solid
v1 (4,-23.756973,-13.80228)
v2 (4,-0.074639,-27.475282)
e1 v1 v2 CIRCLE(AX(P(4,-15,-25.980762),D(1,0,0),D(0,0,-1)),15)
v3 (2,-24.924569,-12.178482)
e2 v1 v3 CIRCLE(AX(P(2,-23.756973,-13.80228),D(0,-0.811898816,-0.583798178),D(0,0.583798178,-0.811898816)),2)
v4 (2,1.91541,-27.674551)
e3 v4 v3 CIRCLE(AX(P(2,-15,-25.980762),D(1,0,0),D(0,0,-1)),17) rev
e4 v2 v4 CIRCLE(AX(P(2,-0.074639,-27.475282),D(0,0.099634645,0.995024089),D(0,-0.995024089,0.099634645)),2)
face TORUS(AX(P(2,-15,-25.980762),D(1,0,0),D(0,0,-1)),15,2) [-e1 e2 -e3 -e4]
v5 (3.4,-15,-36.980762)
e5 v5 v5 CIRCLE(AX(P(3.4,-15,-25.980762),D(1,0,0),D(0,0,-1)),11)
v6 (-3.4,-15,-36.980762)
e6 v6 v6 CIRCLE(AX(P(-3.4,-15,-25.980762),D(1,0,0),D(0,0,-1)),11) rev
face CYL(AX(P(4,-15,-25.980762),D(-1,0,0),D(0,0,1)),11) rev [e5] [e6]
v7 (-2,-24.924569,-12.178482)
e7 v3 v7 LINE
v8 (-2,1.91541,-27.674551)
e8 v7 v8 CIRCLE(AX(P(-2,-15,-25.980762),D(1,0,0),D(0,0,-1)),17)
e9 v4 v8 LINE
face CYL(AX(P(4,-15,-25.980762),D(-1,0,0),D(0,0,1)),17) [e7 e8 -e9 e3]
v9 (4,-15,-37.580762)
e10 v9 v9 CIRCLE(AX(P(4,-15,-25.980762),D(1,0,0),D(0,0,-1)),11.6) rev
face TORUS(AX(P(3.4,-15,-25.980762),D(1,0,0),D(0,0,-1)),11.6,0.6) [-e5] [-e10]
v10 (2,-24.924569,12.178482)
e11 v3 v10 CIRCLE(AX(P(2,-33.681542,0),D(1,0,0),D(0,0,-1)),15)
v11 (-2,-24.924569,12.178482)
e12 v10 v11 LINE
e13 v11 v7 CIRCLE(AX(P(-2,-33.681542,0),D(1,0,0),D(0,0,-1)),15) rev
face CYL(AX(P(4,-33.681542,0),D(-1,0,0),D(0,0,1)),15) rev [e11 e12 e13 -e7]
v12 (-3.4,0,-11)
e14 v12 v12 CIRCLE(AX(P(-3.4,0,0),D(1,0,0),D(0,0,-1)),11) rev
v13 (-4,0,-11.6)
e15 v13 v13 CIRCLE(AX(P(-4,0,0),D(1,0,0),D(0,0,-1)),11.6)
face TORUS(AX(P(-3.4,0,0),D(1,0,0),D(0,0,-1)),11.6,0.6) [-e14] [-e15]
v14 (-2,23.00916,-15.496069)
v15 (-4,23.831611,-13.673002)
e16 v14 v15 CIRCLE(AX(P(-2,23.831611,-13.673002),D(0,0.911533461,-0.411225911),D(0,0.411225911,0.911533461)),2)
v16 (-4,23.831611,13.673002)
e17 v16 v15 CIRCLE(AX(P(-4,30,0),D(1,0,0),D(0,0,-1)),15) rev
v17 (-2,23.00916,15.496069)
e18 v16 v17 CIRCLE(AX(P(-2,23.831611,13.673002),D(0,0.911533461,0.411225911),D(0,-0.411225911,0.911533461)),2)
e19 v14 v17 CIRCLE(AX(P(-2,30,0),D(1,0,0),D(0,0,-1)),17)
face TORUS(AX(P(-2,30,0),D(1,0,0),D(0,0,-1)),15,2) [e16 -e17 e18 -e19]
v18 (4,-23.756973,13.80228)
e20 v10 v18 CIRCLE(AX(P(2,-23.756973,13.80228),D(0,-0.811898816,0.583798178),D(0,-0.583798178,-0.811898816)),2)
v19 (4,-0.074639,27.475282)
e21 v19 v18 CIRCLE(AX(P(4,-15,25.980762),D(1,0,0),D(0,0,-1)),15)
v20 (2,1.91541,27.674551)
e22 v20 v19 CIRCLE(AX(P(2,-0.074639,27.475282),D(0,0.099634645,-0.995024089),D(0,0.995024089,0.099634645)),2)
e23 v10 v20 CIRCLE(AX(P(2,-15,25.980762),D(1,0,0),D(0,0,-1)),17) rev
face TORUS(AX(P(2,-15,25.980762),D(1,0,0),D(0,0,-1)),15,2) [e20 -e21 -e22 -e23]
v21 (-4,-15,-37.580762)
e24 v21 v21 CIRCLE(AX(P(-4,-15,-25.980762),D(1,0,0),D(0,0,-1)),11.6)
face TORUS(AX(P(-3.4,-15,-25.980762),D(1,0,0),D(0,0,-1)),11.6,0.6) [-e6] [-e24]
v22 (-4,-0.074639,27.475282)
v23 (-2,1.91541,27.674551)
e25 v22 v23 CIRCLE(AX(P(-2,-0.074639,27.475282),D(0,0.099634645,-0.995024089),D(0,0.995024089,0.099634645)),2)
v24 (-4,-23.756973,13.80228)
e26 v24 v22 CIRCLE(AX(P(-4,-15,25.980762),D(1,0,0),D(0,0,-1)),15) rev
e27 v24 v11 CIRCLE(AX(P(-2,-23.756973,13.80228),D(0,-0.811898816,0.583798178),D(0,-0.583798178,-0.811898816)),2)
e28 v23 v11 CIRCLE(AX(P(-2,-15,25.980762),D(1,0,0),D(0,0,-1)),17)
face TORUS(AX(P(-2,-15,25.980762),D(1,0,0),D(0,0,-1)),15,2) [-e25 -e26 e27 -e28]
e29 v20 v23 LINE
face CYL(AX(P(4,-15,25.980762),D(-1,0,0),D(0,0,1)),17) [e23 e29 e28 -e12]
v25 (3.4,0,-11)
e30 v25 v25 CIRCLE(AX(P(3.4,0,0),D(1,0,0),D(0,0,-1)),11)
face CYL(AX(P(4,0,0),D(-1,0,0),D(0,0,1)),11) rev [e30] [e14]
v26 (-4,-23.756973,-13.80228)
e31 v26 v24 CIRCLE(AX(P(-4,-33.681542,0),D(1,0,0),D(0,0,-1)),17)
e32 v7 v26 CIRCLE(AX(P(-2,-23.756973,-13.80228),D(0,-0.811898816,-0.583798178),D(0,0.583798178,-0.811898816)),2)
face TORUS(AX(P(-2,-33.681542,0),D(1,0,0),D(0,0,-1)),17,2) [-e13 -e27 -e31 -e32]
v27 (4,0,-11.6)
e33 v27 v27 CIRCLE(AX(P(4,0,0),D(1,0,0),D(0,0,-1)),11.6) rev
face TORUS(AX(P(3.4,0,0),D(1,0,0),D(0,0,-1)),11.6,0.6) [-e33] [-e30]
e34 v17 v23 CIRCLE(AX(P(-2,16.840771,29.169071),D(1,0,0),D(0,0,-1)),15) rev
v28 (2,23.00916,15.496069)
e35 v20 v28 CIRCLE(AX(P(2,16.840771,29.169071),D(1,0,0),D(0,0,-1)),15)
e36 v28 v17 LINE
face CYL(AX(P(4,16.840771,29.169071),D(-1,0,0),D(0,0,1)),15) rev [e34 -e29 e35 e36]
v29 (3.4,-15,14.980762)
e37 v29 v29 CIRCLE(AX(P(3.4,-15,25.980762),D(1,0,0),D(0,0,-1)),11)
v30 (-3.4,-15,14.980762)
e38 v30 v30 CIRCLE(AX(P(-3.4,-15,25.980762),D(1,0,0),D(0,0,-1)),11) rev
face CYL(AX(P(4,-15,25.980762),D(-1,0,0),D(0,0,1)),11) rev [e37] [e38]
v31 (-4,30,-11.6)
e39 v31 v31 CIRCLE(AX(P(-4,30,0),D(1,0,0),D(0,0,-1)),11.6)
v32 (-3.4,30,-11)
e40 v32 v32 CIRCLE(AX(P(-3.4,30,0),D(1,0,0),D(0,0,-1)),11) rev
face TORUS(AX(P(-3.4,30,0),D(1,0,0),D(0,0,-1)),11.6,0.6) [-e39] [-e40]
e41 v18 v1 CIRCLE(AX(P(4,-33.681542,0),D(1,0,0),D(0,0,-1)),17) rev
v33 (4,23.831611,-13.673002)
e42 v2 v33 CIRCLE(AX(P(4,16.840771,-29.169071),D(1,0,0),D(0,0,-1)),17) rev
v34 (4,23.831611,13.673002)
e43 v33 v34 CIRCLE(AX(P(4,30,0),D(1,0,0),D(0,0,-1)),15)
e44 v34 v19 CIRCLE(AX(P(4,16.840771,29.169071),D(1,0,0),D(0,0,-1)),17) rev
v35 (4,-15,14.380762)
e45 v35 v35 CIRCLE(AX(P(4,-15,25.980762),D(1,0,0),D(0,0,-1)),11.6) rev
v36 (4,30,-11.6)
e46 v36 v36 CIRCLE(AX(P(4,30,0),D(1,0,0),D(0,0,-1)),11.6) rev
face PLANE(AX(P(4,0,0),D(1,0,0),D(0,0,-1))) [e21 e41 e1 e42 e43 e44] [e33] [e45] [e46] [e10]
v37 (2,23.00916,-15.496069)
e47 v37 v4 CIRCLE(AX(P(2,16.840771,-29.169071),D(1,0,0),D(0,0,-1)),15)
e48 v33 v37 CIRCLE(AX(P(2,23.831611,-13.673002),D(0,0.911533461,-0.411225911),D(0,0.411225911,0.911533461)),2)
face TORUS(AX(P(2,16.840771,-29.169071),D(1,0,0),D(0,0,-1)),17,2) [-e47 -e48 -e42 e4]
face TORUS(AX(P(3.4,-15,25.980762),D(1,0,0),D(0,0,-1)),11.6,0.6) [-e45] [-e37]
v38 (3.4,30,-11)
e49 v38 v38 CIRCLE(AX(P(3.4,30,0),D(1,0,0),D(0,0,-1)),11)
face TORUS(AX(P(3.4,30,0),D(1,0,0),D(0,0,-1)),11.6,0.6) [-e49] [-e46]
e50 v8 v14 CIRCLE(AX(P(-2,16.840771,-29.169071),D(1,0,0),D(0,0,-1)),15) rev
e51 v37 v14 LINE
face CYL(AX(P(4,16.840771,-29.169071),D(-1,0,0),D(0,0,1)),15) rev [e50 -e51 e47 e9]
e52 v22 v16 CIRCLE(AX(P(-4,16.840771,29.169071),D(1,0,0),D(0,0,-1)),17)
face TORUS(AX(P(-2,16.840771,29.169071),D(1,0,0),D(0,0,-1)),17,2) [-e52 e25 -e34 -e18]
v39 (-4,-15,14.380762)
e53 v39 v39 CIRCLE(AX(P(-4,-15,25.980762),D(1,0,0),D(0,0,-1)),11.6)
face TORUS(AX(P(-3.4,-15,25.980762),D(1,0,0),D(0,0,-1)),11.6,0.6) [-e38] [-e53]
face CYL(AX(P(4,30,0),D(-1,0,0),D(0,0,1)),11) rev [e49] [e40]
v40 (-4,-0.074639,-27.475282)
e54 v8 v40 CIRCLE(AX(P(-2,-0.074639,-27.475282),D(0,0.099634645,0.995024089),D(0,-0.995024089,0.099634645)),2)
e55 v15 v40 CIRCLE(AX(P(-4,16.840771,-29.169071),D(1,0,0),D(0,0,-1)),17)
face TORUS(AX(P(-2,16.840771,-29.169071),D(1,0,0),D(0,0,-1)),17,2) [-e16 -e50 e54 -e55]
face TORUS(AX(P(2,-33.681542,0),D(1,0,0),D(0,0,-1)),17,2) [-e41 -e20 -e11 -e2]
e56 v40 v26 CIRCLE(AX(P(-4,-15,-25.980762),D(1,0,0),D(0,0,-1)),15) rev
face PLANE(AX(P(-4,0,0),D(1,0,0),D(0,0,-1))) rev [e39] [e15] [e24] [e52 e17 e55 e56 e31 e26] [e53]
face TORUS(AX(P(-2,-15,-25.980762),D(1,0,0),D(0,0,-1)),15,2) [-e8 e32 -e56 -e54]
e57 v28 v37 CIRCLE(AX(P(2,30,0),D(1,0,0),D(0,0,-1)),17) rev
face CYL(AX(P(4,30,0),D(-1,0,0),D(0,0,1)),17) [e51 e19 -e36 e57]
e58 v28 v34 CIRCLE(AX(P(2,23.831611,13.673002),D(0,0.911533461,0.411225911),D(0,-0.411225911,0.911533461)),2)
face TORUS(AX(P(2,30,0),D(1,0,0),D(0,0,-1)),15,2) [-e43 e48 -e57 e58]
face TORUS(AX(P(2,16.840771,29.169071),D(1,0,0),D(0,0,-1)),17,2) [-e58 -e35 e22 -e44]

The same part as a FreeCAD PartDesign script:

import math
import FreeCAD as App
import Part
import Sketcher


def edges_at(feature, points):
    """Names of the edges that pass closest to the given points."""
    edges = feature.Shape.Edges
    near = lambda p: min(range(len(edges)), key=lambda i: edges[i].distToShape(Part.Vertex(*p))[0])
    return sorted({f"Edge{near(p) + 1}" for p in points})

doc = App.newDocument("Part")
params = doc.addObject("Spreadsheet::Sheet", "Params")
for row, (alias, value) in enumerate([
    ("sketch1_diameter", "22 mm"),
    ("sketch1_radius", "15 mm"),
    ("sketch1_radius2", "17 mm"),
    ("pad1_length", "8 mm"),
    ("fillet_radius", "2 mm"),
    ("fillet2_radius", "0.6 mm"),
], start=1):
    params.set(f"A{row}", alias)
    params.set(f"B{row}", "=" + value)
    params.setAlias(f"B{row}", alias)

body = doc.addObject("PartDesign::Body", "Body")

# Sketch on YZ plane
sketch1 = body.newObject("Sketcher::SketchObject", "Sketch")
sketch1.AttachmentSupport = (doc.getObject("YZ_Plane"), [""])
sketch1.MapMode = "FlatFace"
sketch1.addGeometry([
    Part.ArcOfCircle(Part.Circle(App.Vector(17, 29, 0), App.Vector(0, 0, 1), 15), math.radians(-174), math.radians(-66)),  # 0
    Part.ArcOfCircle(Part.Circle(App.Vector(-15, 26, 0), App.Vector(0, 0, 1), 17), math.radians(6), math.radians(234)),  # 1
    Part.ArcOfCircle(Part.Circle(App.Vector(-34, 0, 0), App.Vector(0, 0, 1), 15), math.radians(-54), math.radians(54)),  # 2
    Part.ArcOfCircle(Part.Circle(App.Vector(-15, -26, 0), App.Vector(0, 0, 1), 17), math.radians(126), math.radians(354)),  # 3
    Part.ArcOfCircle(Part.Circle(App.Vector(17, -29, 0), App.Vector(0, 0, 1), 15), math.radians(66), math.radians(174)),  # 4
    Part.ArcOfCircle(Part.Circle(App.Vector(30, 0, 0), App.Vector(0, 0, 1), 17), math.radians(-114), math.radians(114)),  # 5
    Part.Circle(App.Vector(30, 0, 0), App.Vector(0, 0, 1), 11),  # 6
    Part.Circle(App.Vector(0, 0, 0), App.Vector(0, 0, 1), 11),  # 7
    Part.Circle(App.Vector(-15, -26, 0), App.Vector(0, 0, 1), 11),  # 8
    Part.Circle(App.Vector(-15, 26, 0), App.Vector(0, 0, 1), 11),  # 9
], False)
sketch1.addConstraint([
    Sketcher.Constraint("Tangent", 0, 1, 1, 1),
    Sketcher.Constraint("Tangent", 1, 2, 2, 2),
    Sketcher.Constraint("Tangent", 2, 1, 3, 1),
    Sketcher.Constraint("Tangent", 3, 2, 4, 2),
    Sketcher.Constraint("Tangent", 4, 1, 5, 1),
    Sketcher.Constraint("Tangent", 5, 2, 0, 2),
    Sketcher.Constraint("Coincident", 7, 3, -1, 1),
    Sketcher.Constraint("Coincident", 6, 3, 5, 3),
    Sketcher.Constraint("Coincident", 8, 3, 3, 3),
    Sketcher.Constraint("Coincident", 9, 3, 1, 3),
    Sketcher.Constraint("Equal", 0, 2),
    Sketcher.Constraint("Equal", 1, 3),
    Sketcher.Constraint("Equal", 2, 4),
    Sketcher.Constraint("Equal", 3, 5),
    Sketcher.Constraint("Equal", 6, 7),
    Sketcher.Constraint("Equal", 7, 8),
    Sketcher.Constraint("Equal", 8, 9),
    Sketcher.Constraint("Symmetric", 1, 3, 3, 3, -1),
    Sketcher.Constraint("PointOnObject", 5, 3, -1),
    Sketcher.Constraint("Diameter", 6, 22.0),
    Sketcher.Constraint("Radius", 0, 15.0),
    Sketcher.Constraint("Radius", 1, 17.0),
    Sketcher.Constraint("DistanceX", 1, 3, -1, 1, 15.0),
    Sketcher.Constraint("DistanceX", -1, 1, 5, 3, 30.0),
    Sketcher.Constraint("DistanceX", -1, 1, 0, 3, 16.840771),
])
sketch1.setExpression("Constraints[19]", "Params.sketch1_diameter")
sketch1.setExpression("Constraints[20]", "Params.sketch1_radius")
sketch1.setExpression("Constraints[21]", "Params.sketch1_radius2")
pad1 = body.newObject("PartDesign::Pad", "Pad")
pad1.Profile = sketch1
pad1.setExpression("Length", "Params.pad1_length")
pad1.Midplane = True
doc.recompute()

fillet = body.newObject("PartDesign::Fillet", "Fillet")
fillet.Base = (pad1, edges_at(pad1, [
    (-4, 9.341, -16.179),
    (4, 47, 0),
    (-4, -23.5, -40.703),
    (-4, -18.682, 0),
    (-4, -23.5, 40.703),
    (-4, 9.341, 16.179),
    (-4, 47, 0),
    (4, 9.341, 16.179),
    (4, -23.5, 40.703),
    (4, -18.682, 0),
    (4, -23.5, -40.703),
    (4, 9.341, -16.179),
]))
fillet.setExpression("Radius", "Params.fillet_radius")
doc.recompute()

fillet2 = body.newObject("PartDesign::Fillet", "Fillet001")
fillet2.Base = (fillet, edges_at(fillet, [
    (-4, -15, 36.981),
    (-4, -15, -14.981),
    (-4, 0, 11),
    (-4, 30, 11),
    (4, 0, 11),
    (4, -15, -14.981),
    (4, -15, 36.981),
    (4, 30, 11),
]))
fillet2.setExpression("Radius", "Params.fillet2_radius")

doc.recompute()
